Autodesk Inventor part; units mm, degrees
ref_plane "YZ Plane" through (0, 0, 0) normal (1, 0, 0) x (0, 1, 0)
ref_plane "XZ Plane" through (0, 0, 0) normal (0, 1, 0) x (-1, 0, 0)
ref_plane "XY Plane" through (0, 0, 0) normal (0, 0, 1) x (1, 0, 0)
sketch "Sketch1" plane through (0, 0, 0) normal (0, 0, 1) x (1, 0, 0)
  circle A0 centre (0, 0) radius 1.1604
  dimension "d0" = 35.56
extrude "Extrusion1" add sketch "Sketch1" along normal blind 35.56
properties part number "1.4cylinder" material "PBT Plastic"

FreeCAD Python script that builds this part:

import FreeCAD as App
import Part
import Sketcher
from FreeCAD import Vector
Q = App.Units.Quantity

doc = App.newDocument("Part")
body = doc.addObject("PartDesign::Body", "Body")

# Sketch on XY plane
sketch1 = body.newObject("Sketcher::SketchObject", "Sketch")
sketch1.AttachmentSupport = (doc.getObject("XY_Plane"), [""])
sketch1.MapMode = "FlatFace"
sketch1.addGeometry(Part.Circle(Vector(0, 0, 0), Vector(0, 0, 1), 1.2), False)
sketch1.addConstraint([
    Sketcher.Constraint("Coincident", 0, 3, -1, 1),
    Sketcher.Constraint("Diameter", 0, 2.3208),
])
pad1 = body.newObject("PartDesign::Pad", "Pad")
pad1.Profile = sketch1
pad1.Length = Q("1.4 in")

doc.recompute()
